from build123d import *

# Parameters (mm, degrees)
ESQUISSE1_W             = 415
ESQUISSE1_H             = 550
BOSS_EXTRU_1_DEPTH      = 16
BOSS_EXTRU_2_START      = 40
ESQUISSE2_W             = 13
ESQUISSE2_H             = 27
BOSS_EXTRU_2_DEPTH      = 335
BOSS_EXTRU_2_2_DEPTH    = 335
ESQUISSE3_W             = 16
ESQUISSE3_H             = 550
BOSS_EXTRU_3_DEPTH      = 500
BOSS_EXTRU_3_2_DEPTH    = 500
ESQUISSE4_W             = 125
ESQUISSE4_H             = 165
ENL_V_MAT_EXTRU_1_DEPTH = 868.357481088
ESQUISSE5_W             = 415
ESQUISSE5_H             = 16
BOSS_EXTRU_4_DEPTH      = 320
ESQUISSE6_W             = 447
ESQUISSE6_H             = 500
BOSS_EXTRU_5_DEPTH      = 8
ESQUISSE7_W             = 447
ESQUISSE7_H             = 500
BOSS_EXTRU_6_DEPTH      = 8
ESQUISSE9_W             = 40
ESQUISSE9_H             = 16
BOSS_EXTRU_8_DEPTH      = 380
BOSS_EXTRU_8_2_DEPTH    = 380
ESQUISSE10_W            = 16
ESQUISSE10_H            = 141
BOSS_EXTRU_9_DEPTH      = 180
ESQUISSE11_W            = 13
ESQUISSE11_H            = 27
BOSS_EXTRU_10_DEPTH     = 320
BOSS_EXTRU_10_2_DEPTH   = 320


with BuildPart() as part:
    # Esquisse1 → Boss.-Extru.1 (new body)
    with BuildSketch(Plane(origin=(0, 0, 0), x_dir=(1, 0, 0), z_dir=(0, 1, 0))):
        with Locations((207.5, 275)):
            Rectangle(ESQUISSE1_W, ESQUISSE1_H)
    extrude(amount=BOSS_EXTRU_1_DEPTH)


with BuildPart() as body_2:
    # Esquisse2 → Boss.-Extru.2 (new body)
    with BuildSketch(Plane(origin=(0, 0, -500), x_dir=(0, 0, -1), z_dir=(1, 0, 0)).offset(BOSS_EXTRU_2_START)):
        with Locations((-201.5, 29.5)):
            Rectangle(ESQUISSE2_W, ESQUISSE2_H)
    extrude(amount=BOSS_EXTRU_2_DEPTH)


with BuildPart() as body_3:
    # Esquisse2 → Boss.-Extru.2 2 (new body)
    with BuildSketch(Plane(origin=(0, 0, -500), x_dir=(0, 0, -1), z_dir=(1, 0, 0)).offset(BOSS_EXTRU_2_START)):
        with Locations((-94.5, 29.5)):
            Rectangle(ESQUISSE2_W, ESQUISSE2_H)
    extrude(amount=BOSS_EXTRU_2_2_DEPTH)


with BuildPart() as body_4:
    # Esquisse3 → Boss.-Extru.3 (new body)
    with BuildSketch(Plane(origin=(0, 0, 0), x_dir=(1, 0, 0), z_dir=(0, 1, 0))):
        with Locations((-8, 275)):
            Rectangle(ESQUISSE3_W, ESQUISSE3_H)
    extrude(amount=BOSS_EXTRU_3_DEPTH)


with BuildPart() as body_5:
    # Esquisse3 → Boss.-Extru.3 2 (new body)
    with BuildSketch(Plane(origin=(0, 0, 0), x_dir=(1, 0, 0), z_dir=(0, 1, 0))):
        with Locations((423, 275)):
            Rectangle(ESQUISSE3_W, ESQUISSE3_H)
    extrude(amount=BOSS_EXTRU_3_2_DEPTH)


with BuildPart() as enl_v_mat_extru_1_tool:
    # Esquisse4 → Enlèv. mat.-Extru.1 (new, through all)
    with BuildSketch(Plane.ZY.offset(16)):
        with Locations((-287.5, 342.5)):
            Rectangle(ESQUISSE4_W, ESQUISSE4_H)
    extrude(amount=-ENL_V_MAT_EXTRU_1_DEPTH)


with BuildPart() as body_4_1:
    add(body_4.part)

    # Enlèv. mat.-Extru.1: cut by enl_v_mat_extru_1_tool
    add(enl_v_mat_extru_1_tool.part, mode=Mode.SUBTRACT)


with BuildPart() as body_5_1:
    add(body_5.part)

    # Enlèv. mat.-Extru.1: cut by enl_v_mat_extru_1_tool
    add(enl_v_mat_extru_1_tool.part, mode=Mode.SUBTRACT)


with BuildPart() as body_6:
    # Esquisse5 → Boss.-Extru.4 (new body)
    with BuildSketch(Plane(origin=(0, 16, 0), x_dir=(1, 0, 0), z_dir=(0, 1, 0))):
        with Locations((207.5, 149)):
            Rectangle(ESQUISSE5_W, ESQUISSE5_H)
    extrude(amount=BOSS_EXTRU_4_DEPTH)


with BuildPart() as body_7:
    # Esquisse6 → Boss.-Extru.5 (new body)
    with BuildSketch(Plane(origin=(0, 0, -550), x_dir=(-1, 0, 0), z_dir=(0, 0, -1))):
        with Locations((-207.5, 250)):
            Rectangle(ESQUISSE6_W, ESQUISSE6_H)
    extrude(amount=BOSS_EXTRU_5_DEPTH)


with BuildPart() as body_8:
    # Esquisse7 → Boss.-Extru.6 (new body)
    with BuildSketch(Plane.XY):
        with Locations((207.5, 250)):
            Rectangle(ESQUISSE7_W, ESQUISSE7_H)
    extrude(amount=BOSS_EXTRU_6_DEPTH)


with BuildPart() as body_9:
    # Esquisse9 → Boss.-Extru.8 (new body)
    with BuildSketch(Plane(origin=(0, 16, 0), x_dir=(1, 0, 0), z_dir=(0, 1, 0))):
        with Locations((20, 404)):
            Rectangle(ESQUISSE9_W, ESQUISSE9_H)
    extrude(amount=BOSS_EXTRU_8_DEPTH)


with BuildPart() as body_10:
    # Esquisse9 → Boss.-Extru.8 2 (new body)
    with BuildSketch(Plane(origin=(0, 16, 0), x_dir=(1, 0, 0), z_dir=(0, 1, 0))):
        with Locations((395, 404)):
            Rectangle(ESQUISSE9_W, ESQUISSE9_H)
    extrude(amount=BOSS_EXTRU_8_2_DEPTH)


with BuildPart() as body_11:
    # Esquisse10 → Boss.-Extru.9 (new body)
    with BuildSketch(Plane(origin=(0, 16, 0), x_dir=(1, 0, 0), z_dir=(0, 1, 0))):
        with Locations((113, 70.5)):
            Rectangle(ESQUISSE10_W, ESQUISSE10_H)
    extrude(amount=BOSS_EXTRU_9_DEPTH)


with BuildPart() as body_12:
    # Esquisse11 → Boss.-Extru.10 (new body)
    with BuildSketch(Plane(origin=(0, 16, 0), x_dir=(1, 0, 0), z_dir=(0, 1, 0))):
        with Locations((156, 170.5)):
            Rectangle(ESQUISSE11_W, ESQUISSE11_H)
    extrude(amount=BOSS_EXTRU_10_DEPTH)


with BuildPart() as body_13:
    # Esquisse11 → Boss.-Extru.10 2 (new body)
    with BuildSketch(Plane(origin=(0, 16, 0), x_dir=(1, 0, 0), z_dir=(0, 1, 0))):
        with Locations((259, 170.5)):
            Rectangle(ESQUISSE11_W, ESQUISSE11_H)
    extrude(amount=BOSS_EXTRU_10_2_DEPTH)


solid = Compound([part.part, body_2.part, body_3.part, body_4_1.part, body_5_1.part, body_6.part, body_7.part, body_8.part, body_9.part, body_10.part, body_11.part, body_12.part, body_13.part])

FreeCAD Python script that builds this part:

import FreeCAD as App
import Part
import Sketcher
from FreeCAD import Vector
Q = App.Units.Quantity

doc = App.newDocument("Part")
body = doc.addObject("PartDesign::Body", "Body")

# Sketch on XZ plane
sketch1 = body.newObject("Sketcher::SketchObject", "Sketch")
sketch1.AttachmentSupport = (doc.getObject("XZ_Plane"), [""])
sketch1.MapMode = "FlatFace"
sketch1.addGeometry([
    Part.LineSegment(Vector(0, -550, 0), Vector(0, 0, 0)),
    Part.LineSegment(Vector(0, 0, 0), Vector(415, 0, 0)),
    Part.LineSegment(Vector(415, 0, 0), Vector(415, -550, 0)),
    Part.LineSegment(Vector(415, -550, 0), Vector(0, -550, 0)),
], False)
sketch1.addConstraint([
    Sketcher.Constraint("Coincident", 0, 2, 1, 1),
    Sketcher.Constraint("Coincident", 1, 2, 2, 1),
    Sketcher.Constraint("Coincident", 2, 2, 3, 1),
    Sketcher.Constraint("Coincident", 3, 2, 0, 1),
    Sketcher.Constraint("Vertical", 0),
    Sketcher.Constraint("Horizontal", 1),
    Sketcher.Constraint("Vertical", 2),
    Sketcher.Constraint("Horizontal", 3),
    Sketcher.Constraint("Coincident", 0, 2, -1, 1),
    Sketcher.Constraint("DistanceX", 1, 1, 1, 2, Q("415 mm")),
    Sketcher.Constraint("DistanceY", 0, 1, 0, 2, Q("550 mm")),
])
pad1 = body.newObject("PartDesign::Pad", "Pad")
pad1.Profile = sketch1
pad1.Length = 16
pad1.Reversed = True
body2 = doc.addObject("PartDesign::Body", "Body001")

# Sketch on YZ plane
sketch2 = body2.newObject("Sketcher::SketchObject", "Sketch001")
sketch2.AttachmentSupport = (doc.getObject("YZ_Plane001"), [""])
sketch2.MapMode = "FlatFace"
sketch2.AttachmentOffset = App.Placement(Vector(0, 0, 40), App.Rotation())
sketch2.addGeometry([
    Part.LineSegment(Vector(43, -292, 0), Vector(16, -292, 0)),
    Part.LineSegment(Vector(16, -292, 0), Vector(16, -305, 0)),
    Part.LineSegment(Vector(16, -305, 0), Vector(43, -305, 0)),
    Part.LineSegment(Vector(43, -305, 0), Vector(43, -292, 0)),
], False)
sketch2.addConstraint([
    Sketcher.Constraint("Coincident", 0, 2, 1, 1),
    Sketcher.Constraint("Coincident", 1, 2, 2, 1),
    Sketcher.Constraint("Coincident", 2, 2, 3, 1),
    Sketcher.Constraint("Coincident", 3, 2, 0, 1),
    Sketcher.Constraint("Horizontal", 0),
    Sketcher.Constraint("Vertical", 1),
    Sketcher.Constraint("Horizontal", 2),
    Sketcher.Constraint("Vertical", 3),
    Sketcher.Constraint("DistanceX", 0, 2, 0, 1, Q("27 mm")),
    Sketcher.Constraint("DistanceY", 1, 2, 1, 1, Q("13 mm")),
    Sketcher.Constraint("DistanceX", -1, 1, 0, 2, Q("16 mm")),
    Sketcher.Constraint("DistanceY", 0, 2, -1, 1, Q("292 mm")),
])
pad2 = body2.newObject("PartDesign::Pad", "Pad001")
pad2.Profile = sketch2
pad2.Length = 335
body3 = doc.addObject("PartDesign::Body", "Body002")

# Sketch on YZ plane
sketch3 = body3.newObject("Sketcher::SketchObject", "Sketch002")
sketch3.AttachmentSupport = (doc.getObject("YZ_Plane002"), [""])
sketch3.MapMode = "FlatFace"
sketch3.AttachmentOffset = App.Placement(Vector(0, 0, 40), App.Rotation())
sketch3.addGeometry([
    Part.LineSegment(Vector(43, -399, 0), Vector(16, -399, 0)),
    Part.LineSegment(Vector(16, -399, 0), Vector(16, -412, 0)),
    Part.LineSegment(Vector(16, -412, 0), Vector(43, -412, 0)),
    Part.LineSegment(Vector(43, -412, 0), Vector(43, -399, 0)),
], False)
sketch3.addConstraint([
    Sketcher.Constraint("Coincident", 0, 2, 1, 1),
    Sketcher.Constraint("Coincident", 1, 2, 2, 1),
    Sketcher.Constraint("Coincident", 2, 2, 3, 1),
    Sketcher.Constraint("Coincident", 3, 2, 0, 1),
    Sketcher.Constraint("Horizontal", 0),
    Sketcher.Constraint("Vertical", 1),
    Sketcher.Constraint("Horizontal", 2),
    Sketcher.Constraint("Vertical", 3),
    Sketcher.Constraint("DistanceX", 0, 2, 0, 1, Q("27 mm")),
    Sketcher.Constraint("DistanceY", 1, 2, 1, 1, Q("13 mm")),
    Sketcher.Constraint("DistanceX", -1, 1, 0, 2, Q("16 mm")),
    Sketcher.Constraint("DistanceY", 0, 2, -1, 1, Q("399 mm")),
])
pad3 = body3.newObject("PartDesign::Pad", "Pad002")
pad3.Profile = sketch3
pad3.Length = 335
body4 = doc.addObject("PartDesign::Body", "Body003")

# Sketch on XZ plane
sketch4 = body4.newObject("Sketcher::SketchObject", "Sketch003")
sketch4.AttachmentSupport = (doc.getObject("XZ_Plane003"), [""])
sketch4.MapMode = "FlatFace"
sketch4.addGeometry([
    Part.LineSegment(Vector(-16, -550, 0), Vector(-16, 0, 0)),
    Part.LineSegment(Vector(-16, 0, 0), Vector(0, 0, 0)),
    Part.LineSegment(Vector(0, 0, 0), Vector(0, -550, 0)),
    Part.LineSegment(Vector(0, -550, 0), Vector(-16, -550, 0)),
], False)
sketch4.addConstraint([
    Sketcher.Constraint("Coincident", 0, 2, 1, 1),
    Sketcher.Constraint("Coincident", 1, 2, 2, 1),
    Sketcher.Constraint("Coincident", 2, 2, 3, 1),
    Sketcher.Constraint("Coincident", 3, 2, 0, 1),
    Sketcher.Constraint("Vertical", 0),
    Sketcher.Constraint("Horizontal", 1),
    Sketcher.Constraint("Vertical", 2),
    Sketcher.Constraint("Horizontal", 3),
    Sketcher.Constraint("Coincident", 1, 2, -1, 1),
    Sketcher.Constraint("DistanceX", 1, 1, 1, 2, Q("16 mm")),
    Sketcher.Constraint("DistanceY", 0, 1, 0, 2, Q("550 mm")),
])
pad4 = body4.newObject("PartDesign::Pad", "Pad003")
pad4.Profile = sketch4
pad4.Length = 500
pad4.Reversed = True
body5 = doc.addObject("PartDesign::Body", "Body004")

# Sketch on XZ plane
sketch5 = body5.newObject("Sketcher::SketchObject", "Sketch004")
sketch5.AttachmentSupport = (doc.getObject("XZ_Plane004"), [""])
sketch5.MapMode = "FlatFace"
sketch5.addGeometry([
    Part.LineSegment(Vector(415, -550, 0), Vector(415, 0, 0)),
    Part.LineSegment(Vector(415, 0, 0), Vector(431, 0, 0)),
    Part.LineSegment(Vector(431, 0, 0), Vector(431, -550, 0)),
    Part.LineSegment(Vector(431, -550, 0), Vector(415, -550, 0)),
], False)
sketch5.addConstraint([
    Sketcher.Constraint("Coincident", 0, 2, 1, 1),
    Sketcher.Constraint("Coincident", 1, 2, 2, 1),
    Sketcher.Constraint("Coincident", 2, 2, 3, 1),
    Sketcher.Constraint("Coincident", 3, 2, 0, 1),
    Sketcher.Constraint("Vertical", 0),
    Sketcher.Constraint("Horizontal", 1),
    Sketcher.Constraint("Vertical", 2),
    Sketcher.Constraint("Horizontal", 3),
    Sketcher.Constraint("PointOnObject", 0, 2, -1),
    Sketcher.Constraint("DistanceX", 1, 1, 1, 2, Q("16 mm")),
    Sketcher.Constraint("DistanceY", 0, 1, 0, 2, Q("550 mm")),
    Sketcher.Constraint("DistanceX", -1, 1, 0, 2, Q("415 mm")),
])
pad5 = body5.newObject("PartDesign::Pad", "Pad004")
pad5.Profile = sketch5
pad5.Length = 500
pad5.Reversed = True
body6 = doc.addObject("PartDesign::Body", "Body005")

# Sketch on YZ plane
sketch6 = body6.newObject("Sketcher::SketchObject", "Sketch005")
sketch6.AttachmentSupport = (doc.getObject("YZ_Plane005"), [""])
sketch6.MapMode = "FlatFace"
sketch6.AttachmentOffset = App.Placement(Vector(0, 0, -16), App.Rotation())
sketch6.addGeometry([
    Part.LineSegment(Vector(425, -350, 0), Vector(260, -350, 0)),
    Part.LineSegment(Vector(260, -350, 0), Vector(260, -225, 0)),
    Part.LineSegment(Vector(260, -225, 0), Vector(425, -225, 0)),
    Part.LineSegment(Vector(425, -225, 0), Vector(425, -350, 0)),
], False)
sketch6.addConstraint([
    Sketcher.Constraint("Coincident", 0, 2, 1, 1),
    Sketcher.Constraint("Coincident", 1, 2, 2, 1),
    Sketcher.Constraint("Coincident", 2, 2, 3, 1),
    Sketcher.Constraint("Coincident", 3, 2, 0, 1),
    Sketcher.Constraint("Horizontal", 0),
    Sketcher.Constraint("Vertical", 1),
    Sketcher.Constraint("Horizontal", 2),
    Sketcher.Constraint("Vertical", 3),
    Sketcher.Constraint("DistanceX", 0, 2, 0, 1, Q("165 mm")),
    Sketcher.Constraint("DistanceY", 1, 1, 1, 2, Q("125 mm")),
    Sketcher.Constraint("DistanceX", -1, 1, 0, 2, Q("260 mm")),
    Sketcher.Constraint("DistanceY", 0, 2, -1, 1, Q("350 mm")),
])
pad6 = body6.newObject("PartDesign::Pad", "Pad005")
pad6.Profile = sketch6
pad6.Length = 868.357481
doc.recompute()

body7 = doc.addObject("PartDesign::Body", "Body006")
body7.BaseFeature = body6
boolean = body4.newObject("PartDesign::Boolean", "Boolean")
boolean.Type = "Cut"
boolean.addObjects([body7])
doc.recompute()

boolean2 = body5.newObject("PartDesign::Boolean", "Boolean001")
boolean2.Type = "Cut"
boolean2.addObjects([body6])
body8 = doc.addObject("PartDesign::Body", "Body007")

# Sketch on XZ plane
sketch7 = body8.newObject("Sketcher::SketchObject", "Sketch006")
sketch7.AttachmentSupport = (doc.getObject("XZ_Plane007"), [""])
sketch7.MapMode = "FlatFace"
sketch7.AttachmentOffset = App.Placement(Vector(0, 0, -16), App.Rotation())
sketch7.addGeometry([
    Part.LineSegment(Vector(0, -157, 0), Vector(0, -141, 0)),
    Part.LineSegment(Vector(0, -141, 0), Vector(415, -141, 0)),
    Part.LineSegment(Vector(415, -141, 0), Vector(415, -157, 0)),
    Part.LineSegment(Vector(415, -157, 0), Vector(0, -157, 0)),
], False)
sketch7.addConstraint([
    Sketcher.Constraint("Coincident", 0, 2, 1, 1),
    Sketcher.Constraint("Coincident", 1, 2, 2, 1),
    Sketcher.Constraint("Coincident", 2, 2, 3, 1),
    Sketcher.Constraint("Coincident", 3, 2, 0, 1),
    Sketcher.Constraint("Vertical", 0),
    Sketcher.Constraint("Horizontal", 1),
    Sketcher.Constraint("Vertical", 2),
    Sketcher.Constraint("Horizontal", 3),
    Sketcher.Constraint("PointOnObject", 0, 2, -2),
    Sketcher.Constraint("DistanceX", 1, 1, 1, 2, Q("415 mm")),
    Sketcher.Constraint("DistanceY", 0, 1, 0, 2, Q("16 mm")),
    Sketcher.Constraint("DistanceY", 0, 2, -1, 1, Q("141 mm")),
])
pad7 = body8.newObject("PartDesign::Pad", "Pad006")
pad7.Profile = sketch7
pad7.Length = 320
pad7.Reversed = True
body9 = doc.addObject("PartDesign::Body", "Body008")

# Sketch on XY plane
sketch8 = body9.newObject("Sketcher::SketchObject", "Sketch007")
sketch8.AttachmentSupport = (doc.getObject("XY_Plane008"), [""])
sketch8.MapMode = "FlatFace"
sketch8.AttachmentOffset = App.Placement(Vector(0, 0, -550), App.Rotation())
sketch8.addGeometry([
    Part.LineSegment(Vector(431, 500, 0), Vector(431, 0, 0)),
    Part.LineSegment(Vector(431, 0, 0), Vector(-16, 0, 0)),
    Part.LineSegment(Vector(-16, 0, 0), Vector(-16, 500, 0)),
    Part.LineSegment(Vector(-16, 500, 0), Vector(431, 500, 0)),
], False)
sketch8.addConstraint([
    Sketcher.Constraint("Coincident", 0, 2, 1, 1),
    Sketcher.Constraint("Coincident", 1, 2, 2, 1),
    Sketcher.Constraint("Coincident", 2, 2, 3, 1),
    Sketcher.Constraint("Coincident", 3, 2, 0, 1),
    Sketcher.Constraint("Vertical", 0),
    Sketcher.Constraint("Horizontal", 1),
    Sketcher.Constraint("Vertical", 2),
    Sketcher.Constraint("Horizontal", 3),
    Sketcher.Constraint("PointOnObject", 0, 2, -1),
    Sketcher.Constraint("DistanceX", 1, 2, 1, 1, Q("447 mm")),
    Sketcher.Constraint("DistanceY", 0, 2, 0, 1, Q("500 mm")),
    Sketcher.Constraint("DistanceX", -1, 1, 0, 2, Q("431 mm")),
])
pad8 = body9.newObject("PartDesign::Pad", "Pad007")
pad8.Profile = sketch8
pad8.Length = 8
pad8.Reversed = True
body10 = doc.addObject("PartDesign::Body", "Body009")

# Sketch on XY plane
sketch9 = body10.newObject("Sketcher::SketchObject", "Sketch008")
sketch9.AttachmentSupport = (doc.getObject("XY_Plane009"), [""])
sketch9.MapMode = "FlatFace"
sketch9.addGeometry([
    Part.LineSegment(Vector(-16, 500, 0), Vector(-16, 0, 0)),
    Part.LineSegment(Vector(-16, 0, 0), Vector(431, 0, 0)),
    Part.LineSegment(Vector(431, 0, 0), Vector(431, 500, 0)),
    Part.LineSegment(Vector(431, 500, 0), Vector(-16, 500, 0)),
], False)
sketch9.addConstraint([
    Sketcher.Constraint("Coincident", 0, 2, 1, 1),
    Sketcher.Constraint("Coincident", 1, 2, 2, 1),
    Sketcher.Constraint("Coincident", 2, 2, 3, 1),
    Sketcher.Constraint("Coincident", 3, 2, 0, 1),
    Sketcher.Constraint("Vertical", 0),
    Sketcher.Constraint("Horizontal", 1),
    Sketcher.Constraint("Vertical", 2),
    Sketcher.Constraint("Horizontal", 3),
    Sketcher.Constraint("PointOnObject", 0, 2, -1),
    Sketcher.Constraint("DistanceX", 1, 1, 1, 2, Q("447 mm")),
    Sketcher.Constraint("DistanceY", 0, 2, 0, 1, Q("500 mm")),
    Sketcher.Constraint("DistanceX", 0, 2, -1, 1, Q("16 mm")),
])
pad9 = body10.newObject("PartDesign::Pad", "Pad008")
pad9.Profile = sketch9
pad9.Length = 8
body11 = doc.addObject("PartDesign::Body", "Body010")

# Sketch on XZ plane
sketch10 = body11.newObject("Sketcher::SketchObject", "Sketch009")
sketch10.AttachmentSupport = (doc.getObject("XZ_Plane010"), [""])
sketch10.MapMode = "FlatFace"
sketch10.AttachmentOffset = App.Placement(Vector(0, 0, -16), App.Rotation())
sketch10.addGeometry([
    Part.LineSegment(Vector(0, -412, 0), Vector(0, -396, 0)),
    Part.LineSegment(Vector(0, -396, 0), Vector(40, -396, 0)),
    Part.LineSegment(Vector(40, -396, 0), Vector(40, -412, 0)),
    Part.LineSegment(Vector(40, -412, 0), Vector(0, -412, 0)),
], False)
sketch10.addConstraint([
    Sketcher.Constraint("Coincident", 0, 2, 1, 1),
    Sketcher.Constraint("Coincident", 1, 2, 2, 1),
    Sketcher.Constraint("Coincident", 2, 2, 3, 1),
    Sketcher.Constraint("Coincident", 3, 2, 0, 1),
    Sketcher.Constraint("Vertical", 0),
    Sketcher.Constraint("Horizontal", 1),
    Sketcher.Constraint("Vertical", 2),
    Sketcher.Constraint("Horizontal", 3),
    Sketcher.Constraint("PointOnObject", 0, 2, -2),
    Sketcher.Constraint("DistanceX", 1, 1, 1, 2, Q("40 mm")),
    Sketcher.Constraint("DistanceY", 0, 1, 0, 2, Q("16 mm")),
    Sketcher.Constraint("DistanceY", 0, 2, -1, 1, Q("396 mm")),
])
pad10 = body11.newObject("PartDesign::Pad", "Pad009")
pad10.Profile = sketch10
pad10.Length = 380
pad10.Reversed = True
body12 = doc.addObject("PartDesign::Body", "Body011")

# Sketch on XZ plane
sketch11 = body12.newObject("Sketcher::SketchObject", "Sketch010")
sketch11.AttachmentSupport = (doc.getObject("XZ_Plane011"), [""])
sketch11.MapMode = "FlatFace"
sketch11.AttachmentOffset = App.Placement(Vector(0, 0, -16), App.Rotation())
sketch11.addGeometry([
    Part.LineSegment(Vector(375, -412, 0), Vector(375, -396, 0)),
    Part.LineSegment(Vector(375, -396, 0), Vector(415, -396, 0)),
    Part.LineSegment(Vector(415, -396, 0), Vector(415, -412, 0)),
    Part.LineSegment(Vector(415, -412, 0), Vector(375, -412, 0)),
], False)
sketch11.addConstraint([
    Sketcher.Constraint("Coincident", 0, 2, 1, 1),
    Sketcher.Constraint("Coincident", 1, 2, 2, 1),
    Sketcher.Constraint("Coincident", 2, 2, 3, 1),
    Sketcher.Constraint("Coincident", 3, 2, 0, 1),
    Sketcher.Constraint("Vertical", 0),
    Sketcher.Constraint("Horizontal", 1),
    Sketcher.Constraint("Vertical", 2),
    Sketcher.Constraint("Horizontal", 3),
    Sketcher.Constraint("DistanceX", 1, 1, 1, 2, Q("40 mm")),
    Sketcher.Constraint("DistanceY", 0, 1, 0, 2, Q("16 mm")),
    Sketcher.Constraint("DistanceX", -1, 1, 0, 2, Q("375 mm")),
    Sketcher.Constraint("DistanceY", 0, 2, -1, 1, Q("396 mm")),
])
pad11 = body12.newObject("PartDesign::Pad", "Pad010")
pad11.Profile = sketch11
pad11.Length = 380
pad11.Reversed = True
body13 = doc.addObject("PartDesign::Body", "Body012")

# Sketch on XZ plane
sketch12 = body13.newObject("Sketcher::SketchObject", "Sketch011")
sketch12.AttachmentSupport = (doc.getObject("XZ_Plane012"), [""])
sketch12.MapMode = "FlatFace"
sketch12.AttachmentOffset = App.Placement(Vector(0, 0, -16), App.Rotation())
sketch12.addGeometry([
    Part.LineSegment(Vector(105, -141, 0), Vector(105, 0, 0)),
    Part.LineSegment(Vector(105, 0, 0), Vector(121, 0, 0)),
    Part.LineSegment(Vector(121, 0, 0), Vector(121, -141, 0)),
    Part.LineSegment(Vector(121, -141, 0), Vector(105, -141, 0)),
], False)
sketch12.addConstraint([
    Sketcher.Constraint("Coincident", 0, 2, 1, 1),
    Sketcher.Constraint("Coincident", 1, 2, 2, 1),
    Sketcher.Constraint("Coincident", 2, 2, 3, 1),
    Sketcher.Constraint("Coincident", 3, 2, 0, 1),
    Sketcher.Constraint("Vertical", 0),
    Sketcher.Constraint("Horizontal", 1),
    Sketcher.Constraint("Vertical", 2),
    Sketcher.Constraint("Horizontal", 3),
    Sketcher.Constraint("PointOnObject", 0, 2, -1),
    Sketcher.Constraint("DistanceX", 1, 1, 1, 2, Q("16 mm")),
    Sketcher.Constraint("DistanceY", 0, 1, 0, 2, Q("141 mm")),
    Sketcher.Constraint("DistanceX", -1, 1, 0, 2, Q("105 mm")),
])
pad12 = body13.newObject("PartDesign::Pad", "Pad011")
pad12.Profile = sketch12
pad12.Length = 180
pad12.Reversed = True
body14 = doc.addObject("PartDesign::Body", "Body013")

# Sketch on XZ plane
sketch13 = body14.newObject("Sketcher::SketchObject", "Sketch012")
sketch13.AttachmentSupport = (doc.getObject("XZ_Plane013"), [""])
sketch13.MapMode = "FlatFace"
sketch13.AttachmentOffset = App.Placement(Vector(0, 0, -16), App.Rotation())
sketch13.addGeometry([
    Part.LineSegment(Vector(149.5, -184, 0), Vector(149.5, -157, 0)),
    Part.LineSegment(Vector(149.5, -157, 0), Vector(162.5, -157, 0)),
    Part.LineSegment(Vector(162.5, -157, 0), Vector(162.5, -184, 0)),
    Part.LineSegment(Vector(162.5, -184, 0), Vector(149.5, -184, 0)),
], False)
sketch13.addConstraint([
    Sketcher.Constraint("Coincident", 0, 2, 1, 1),
    Sketcher.Constraint("Coincident", 1, 2, 2, 1),
    Sketcher.Constraint("Coincident", 2, 2, 3, 1),
    Sketcher.Constraint("Coincident", 3, 2, 0, 1),
    Sketcher.Constraint("Vertical", 0),
    Sketcher.Constraint("Horizontal", 1),
    Sketcher.Constraint("Vertical", 2),
    Sketcher.Constraint("Horizontal", 3),
    Sketcher.Constraint("DistanceX", 1, 1, 1, 2, Q("13 mm")),
    Sketcher.Constraint("DistanceY", 0, 1, 0, 2, Q("27 mm")),
    Sketcher.Constraint("DistanceY", 0, 2, -1, 1, Q("157 mm")),
    Sketcher.Constraint("DistanceX", -1, 1, 0, 2, Q("149.5 mm")),
])
pad13 = body14.newObject("PartDesign::Pad", "Pad012")
pad13.Profile = sketch13
pad13.Length = 320
pad13.Reversed = True
body15 = doc.addObject("PartDesign::Body", "Body014")

# Sketch on XZ plane
sketch14 = body15.newObject("Sketcher::SketchObject", "Sketch013")
sketch14.AttachmentSupport = (doc.getObject("XZ_Plane014"), [""])
sketch14.MapMode = "FlatFace"
sketch14.AttachmentOffset = App.Placement(Vector(0, 0, -16), App.Rotation())
sketch14.addGeometry([
    Part.LineSegment(Vector(252.5, -184, 0), Vector(252.5, -157, 0)),
    Part.LineSegment(Vector(252.5, -157, 0), Vector(265.5, -157, 0)),
    Part.LineSegment(Vector(265.5, -157, 0), Vector(265.5, -184, 0)),
    Part.LineSegment(Vector(265.5, -184, 0), Vector(252.5, -184, 0)),
], False)
sketch14.addConstraint([
    Sketcher.Constraint("Coincident", 0, 2, 1, 1),
    Sketcher.Constraint("Coincident", 1, 2, 2, 1),
    Sketcher.Constraint("Coincident", 2, 2, 3, 1),
    Sketcher.Constraint("Coincident", 3, 2, 0, 1),
    Sketcher.Constraint("Vertical", 0),
    Sketcher.Constraint("Horizontal", 1),
    Sketcher.Constraint("Vertical", 2),
    Sketcher.Constraint("Horizontal", 3),
    Sketcher.Constraint("DistanceX", 1, 1, 1, 2, Q("13 mm")),
    Sketcher.Constraint("DistanceY", 0, 1, 0, 2, Q("27 mm")),
    Sketcher.Constraint("DistanceY", 0, 2, -1, 1, Q("157 mm")),
    Sketcher.Constraint("DistanceX", -1, 1, 0, 2, Q("252.5 mm")),
])
pad14 = body15.newObject("PartDesign::Pad", "Pad013")
pad14.Profile = sketch14
pad14.Length = 320
pad14.Reversed = True

doc.recompute()
